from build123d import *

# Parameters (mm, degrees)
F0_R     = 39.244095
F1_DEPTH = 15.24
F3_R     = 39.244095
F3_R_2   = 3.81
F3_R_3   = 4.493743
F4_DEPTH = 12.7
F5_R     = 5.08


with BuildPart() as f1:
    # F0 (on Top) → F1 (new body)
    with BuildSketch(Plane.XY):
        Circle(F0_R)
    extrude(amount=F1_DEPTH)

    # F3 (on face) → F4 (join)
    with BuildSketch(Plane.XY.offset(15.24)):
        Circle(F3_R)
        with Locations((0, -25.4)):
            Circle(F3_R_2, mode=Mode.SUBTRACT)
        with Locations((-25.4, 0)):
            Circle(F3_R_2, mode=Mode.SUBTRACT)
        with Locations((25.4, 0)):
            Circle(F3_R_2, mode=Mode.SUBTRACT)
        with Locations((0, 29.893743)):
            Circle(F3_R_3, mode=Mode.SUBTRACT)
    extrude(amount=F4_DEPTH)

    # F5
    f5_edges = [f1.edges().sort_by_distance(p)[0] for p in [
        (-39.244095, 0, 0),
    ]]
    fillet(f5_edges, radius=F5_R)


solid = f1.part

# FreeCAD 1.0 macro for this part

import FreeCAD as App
import Part
import Sketcher

V = App.Vector
Q = App.Units.Quantity


def edges_at(feature, points):
    """Names of the edges that pass closest to the given points."""
    edges = feature.Shape.Edges
    near = lambda p: min(range(len(edges)), key=lambda i: edges[i].distToShape(Part.Vertex(*p))[0])
    return sorted({f"Edge{near(p) + 1}" for p in points})

doc = App.newDocument("Part")
params = doc.addObject("Spreadsheet::Sheet", "Params")
for row, (alias, value) in enumerate([
    ("pad1_length", "0.6 in"),
    ("sketch2_diameter", "0.3 in"),
    ("pad2_length", "0.5 in"),
    ("fillet_radius", "0.2 in"),
], start=1):
    params.set(f"A{row}", alias)
    params.set(f"B{row}", "=" + value)
    params.setAlias(f"B{row}", alias)

body = doc.addObject("PartDesign::Body", "Body")

sketch1 = body.newObject("Sketcher::SketchObject", "Sketch")
sketch1.AttachmentSupport = (doc.getObject("XY_Plane"), [""])
sketch1.MapMode = "FlatFace"
sketch1.addGeometry(Part.Circle(V(0, 0, 0), V(0, 0, 1), 39.244095), False)
sketch1.addConstraint([
    Sketcher.Constraint("Coincident", 0, 3, -1, 1),
    Sketcher.Constraint("Diameter", 0, 78.48819),
])
pad1 = body.newObject("PartDesign::Pad", "Pad")
pad1.Profile = sketch1
pad1.setExpression("Length", "Params.pad1_length")

sketch2 = body.newObject("Sketcher::SketchObject", "Sketch001")
sketch2.AttachmentSupport = (doc.getObject("XY_Plane"), [""])
sketch2.MapMode = "FlatFace"
sketch2.AttachmentOffset = App.Placement(V(0, 0, 0.6 * 25.4), App.Rotation())
sketch2.addGeometry([
    Part.Circle(V(0, 0, 0), V(0, 0, 1), 39.244095),
    Part.Circle(V(-25.4, 0, 0), V(0, 0, 1), 3.81),
    Part.Circle(V(0, -25.4, 0), V(0, 0, 1), 3.81),
    Part.Circle(V(25.4, 0, 0), V(0, 0, 1), 3.81),
    Part.Circle(V(0, 29.893743, 0), V(0, 0, 1), 4.493743),
], False)
sketch2.addConstraint([
    Sketcher.Constraint("Coincident", 0, 3, -1, 1),
    Sketcher.Constraint("Equal", 1, 2),
    Sketcher.Constraint("Equal", 2, 3),
    Sketcher.Constraint("Symmetric", 1, 3, 3, 3, -1, 1),
    Sketcher.Constraint("PointOnObject", 1, 3, -1),
    Sketcher.Constraint("PointOnObject", 2, 3, -2),
    Sketcher.Constraint("PointOnObject", 4, 3, -2),
    Sketcher.Constraint("Diameter", 1, Q("0.3 in")),
    Sketcher.Constraint("DistanceX", 1, 3, -1, 1, Q("1 in")),
    Sketcher.Constraint("DistanceY", 2, 3, -1, 1, Q("1 in")),
    Sketcher.Constraint("Diameter", 0, 78.48819),
    Sketcher.Constraint("Diameter", 4, 8.987486),
    Sketcher.Constraint("DistanceY", -1, 1, 4, 3, 29.893743),
])
sketch2.setExpression("Constraints[7]", "Params.sketch2_diameter")
pad2 = body.newObject("PartDesign::Pad", "Pad001")
pad2.Profile = sketch2
pad2.setExpression("Length", "Params.pad2_length")
doc.recompute()

fillet = body.newObject("PartDesign::Fillet", "Fillet")
fillet.Base = (pad2, edges_at(pad2, [(-39.244, 0, 0)]))
fillet.setExpression("Radius", "Params.fillet_radius")

doc.recompute()
